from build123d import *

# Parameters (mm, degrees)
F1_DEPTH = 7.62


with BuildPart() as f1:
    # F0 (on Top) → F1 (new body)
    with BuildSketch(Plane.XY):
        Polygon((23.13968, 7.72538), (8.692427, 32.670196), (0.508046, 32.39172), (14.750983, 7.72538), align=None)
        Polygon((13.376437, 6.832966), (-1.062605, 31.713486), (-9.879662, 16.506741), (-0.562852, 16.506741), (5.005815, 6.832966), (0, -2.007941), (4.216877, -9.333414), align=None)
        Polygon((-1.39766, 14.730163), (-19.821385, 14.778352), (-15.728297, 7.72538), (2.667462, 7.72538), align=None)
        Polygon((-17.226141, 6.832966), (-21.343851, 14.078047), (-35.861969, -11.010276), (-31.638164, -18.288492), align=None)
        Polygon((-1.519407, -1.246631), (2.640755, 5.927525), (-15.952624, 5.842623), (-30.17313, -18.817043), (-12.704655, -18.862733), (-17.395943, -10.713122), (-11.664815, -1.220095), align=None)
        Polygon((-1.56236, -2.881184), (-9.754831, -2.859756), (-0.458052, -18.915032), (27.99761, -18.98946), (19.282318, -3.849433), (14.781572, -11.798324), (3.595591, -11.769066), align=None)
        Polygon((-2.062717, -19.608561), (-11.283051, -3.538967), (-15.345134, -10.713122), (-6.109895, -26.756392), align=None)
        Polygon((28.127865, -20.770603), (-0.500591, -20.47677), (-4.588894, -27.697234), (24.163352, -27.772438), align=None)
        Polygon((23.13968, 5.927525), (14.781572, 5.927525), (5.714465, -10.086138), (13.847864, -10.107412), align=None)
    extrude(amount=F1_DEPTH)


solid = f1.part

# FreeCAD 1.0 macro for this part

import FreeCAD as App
import Part
import Sketcher
Q = App.Units.Quantity

doc = App.newDocument("Part")
body = doc.addObject("PartDesign::Body", "Body")
body.AllowCompound = True

sketch1 = body.newObject("Sketcher::SketchObject", "Sketch")
sketch1.AttachmentSupport = (doc.getObject("XY_Plane"), [""])
sketch1.MapMode = "FlatFace"
sketch1.addGeometry([
    Part.LineSegment(App.Vector(23.13968, 7.72538, 0), App.Vector(8.692427, 32.670196, 0)),
    Part.LineSegment(App.Vector(8.692427, 32.670196, 0), App.Vector(0.508046, 32.39172, 0)),
    Part.LineSegment(App.Vector(0.508046, 32.39172, 0), App.Vector(14.750983, 7.72538, 0)),
    Part.LineSegment(App.Vector(14.750983, 7.72538, 0), App.Vector(23.13968, 7.72538, 0)),
    Part.LineSegment(App.Vector(13.376437, 6.832966, 0), App.Vector(-1.062605, 31.713486, 0)),
    Part.LineSegment(App.Vector(-1.062605, 31.713486, 0), App.Vector(-9.879662, 16.506741, 0)),
    Part.LineSegment(App.Vector(-9.879662, 16.506741, 0), App.Vector(-0.562852, 16.506741, 0)),
    Part.LineSegment(App.Vector(-0.562852, 16.506741, 0), App.Vector(5.005815, 6.832966, 0)),
    Part.LineSegment(App.Vector(5.005815, 6.832966, 0), App.Vector(0, -2.007941, 0)),
    Part.LineSegment(App.Vector(0, -2.007941, 0), App.Vector(4.216877, -9.333414, 0)),
    Part.LineSegment(App.Vector(4.216877, -9.333414, 0), App.Vector(13.376437, 6.832966, 0)),
    Part.LineSegment(App.Vector(-1.39766, 14.730163, 0), App.Vector(-19.821385, 14.778352, 0)),
    Part.LineSegment(App.Vector(-19.821385, 14.778352, 0), App.Vector(-15.728297, 7.72538, 0)),
    Part.LineSegment(App.Vector(-15.728297, 7.72538, 0), App.Vector(2.667462, 7.72538, 0)),
    Part.LineSegment(App.Vector(2.667462, 7.72538, 0), App.Vector(-1.39766, 14.730163, 0)),
    Part.LineSegment(App.Vector(-17.226141, 6.832966, 0), App.Vector(-21.343851, 14.078047, 0)),
    Part.LineSegment(App.Vector(-21.343851, 14.078047, 0), App.Vector(-35.861969, -11.010276, 0)),
    Part.LineSegment(App.Vector(-35.861969, -11.010276, 0), App.Vector(-31.638164, -18.288492, 0)),
    Part.LineSegment(App.Vector(-31.638164, -18.288492, 0), App.Vector(-17.226141, 6.832966, 0)),
    Part.LineSegment(App.Vector(-1.519407, -1.246631, 0), App.Vector(2.640755, 5.927525, 0)),
    Part.LineSegment(App.Vector(2.640755, 5.927525, 0), App.Vector(-15.952624, 5.842623, 0)),
    Part.LineSegment(App.Vector(-15.952624, 5.842623, 0), App.Vector(-30.17313, -18.817043, 0)),
    Part.LineSegment(App.Vector(-30.17313, -18.817043, 0), App.Vector(-12.704655, -18.862733, 0)),
    Part.LineSegment(App.Vector(-12.704655, -18.862733, 0), App.Vector(-17.395943, -10.713122, 0)),
    Part.LineSegment(App.Vector(-17.395943, -10.713122, 0), App.Vector(-11.664815, -1.220095, 0)),
    Part.LineSegment(App.Vector(-11.664815, -1.220095, 0), App.Vector(-1.519407, -1.246631, 0)),
    Part.LineSegment(App.Vector(-1.56236, -2.881184, 0), App.Vector(-9.754831, -2.859756, 0)),
    Part.LineSegment(App.Vector(-9.754831, -2.859756, 0), App.Vector(-0.458052, -18.915032, 0)),
    Part.LineSegment(App.Vector(-0.458052, -18.915032, 0), App.Vector(27.99761, -18.98946, 0)),
    Part.LineSegment(App.Vector(27.99761, -18.98946, 0), App.Vector(19.282318, -3.849433, 0)),
    Part.LineSegment(App.Vector(19.282318, -3.849433, 0), App.Vector(14.781572, -11.798324, 0)),
    Part.LineSegment(App.Vector(14.781572, -11.798324, 0), App.Vector(3.595591, -11.769066, 0)),
    Part.LineSegment(App.Vector(3.595591, -11.769066, 0), App.Vector(-1.56236, -2.881184, 0)),
    Part.LineSegment(App.Vector(-2.062717, -19.608561, 0), App.Vector(-11.283051, -3.538967, 0)),
    Part.LineSegment(App.Vector(-11.283051, -3.538967, 0), App.Vector(-15.345134, -10.713122, 0)),
    Part.LineSegment(App.Vector(-15.345134, -10.713122, 0), App.Vector(-6.109895, -26.756392, 0)),
    Part.LineSegment(App.Vector(-6.109895, -26.756392, 0), App.Vector(-2.062717, -19.608561, 0)),
    Part.LineSegment(App.Vector(28.127865, -20.770603, 0), App.Vector(-0.500591, -20.47677, 0)),
    Part.LineSegment(App.Vector(-0.500591, -20.47677, 0), App.Vector(-4.588894, -27.697234, 0)),
    Part.LineSegment(App.Vector(-4.588894, -27.697234, 0), App.Vector(24.163352, -27.772438, 0)),
    Part.LineSegment(App.Vector(24.163352, -27.772438, 0), App.Vector(28.127865, -20.770603, 0)),
    Part.LineSegment(App.Vector(23.13968, 5.927525, 0), App.Vector(14.781572, 5.927525, 0)),
    Part.LineSegment(App.Vector(14.781572, 5.927525, 0), App.Vector(5.714465, -10.086138, 0)),
    Part.LineSegment(App.Vector(5.714465, -10.086138, 0), App.Vector(13.847864, -10.107412, 0)),
    Part.LineSegment(App.Vector(13.847864, -10.107412, 0), App.Vector(23.13968, 5.927525, 0)),
], False)
sketch1.addConstraint([
    Sketcher.Constraint("Coincident", 0, 2, 1, 1),
    Sketcher.Constraint("Coincident", 1, 2, 2, 1),
    Sketcher.Constraint("Coincident", 2, 2, 3, 1),
    Sketcher.Constraint("Coincident", 3, 2, 0, 1),
    Sketcher.Constraint("Coincident", 4, 2, 5, 1),
    Sketcher.Constraint("Coincident", 5, 2, 6, 1),
    Sketcher.Constraint("Coincident", 6, 2, 7, 1),
    Sketcher.Constraint("Coincident", 7, 2, 8, 1),
    Sketcher.Constraint("Coincident", 8, 2, 9, 1),
    Sketcher.Constraint("Coincident", 9, 2, 10, 1),
    Sketcher.Constraint("Coincident", 10, 2, 4, 1),
    Sketcher.Constraint("Coincident", 11, 2, 12, 1),
    Sketcher.Constraint("Coincident", 12, 2, 13, 1),
    Sketcher.Constraint("Coincident", 13, 2, 14, 1),
    Sketcher.Constraint("Coincident", 14, 2, 11, 1),
    Sketcher.Constraint("Coincident", 15, 2, 16, 1),
    Sketcher.Constraint("Coincident", 16, 2, 17, 1),
    Sketcher.Constraint("Coincident", 17, 2, 18, 1),
    Sketcher.Constraint("Coincident", 18, 2, 15, 1),
    Sketcher.Constraint("Coincident", 19, 2, 20, 1),
    Sketcher.Constraint("Coincident", 20, 2, 21, 1),
    Sketcher.Constraint("Coincident", 21, 2, 22, 1),
    Sketcher.Constraint("Coincident", 22, 2, 23, 1),
    Sketcher.Constraint("Coincident", 23, 2, 24, 1),
    Sketcher.Constraint("Coincident", 24, 2, 25, 1),
    Sketcher.Constraint("Coincident", 25, 2, 19, 1),
    Sketcher.Constraint("Coincident", 26, 2, 27, 1),
    Sketcher.Constraint("Coincident", 27, 2, 28, 1),
    Sketcher.Constraint("Coincident", 28, 2, 29, 1),
    Sketcher.Constraint("Coincident", 29, 2, 30, 1),
    Sketcher.Constraint("Coincident", 30, 2, 31, 1),
    Sketcher.Constraint("Coincident", 31, 2, 32, 1),
    Sketcher.Constraint("Coincident", 32, 2, 26, 1),
    Sketcher.Constraint("Coincident", 33, 2, 34, 1),
    Sketcher.Constraint("Coincident", 34, 2, 35, 1),
    Sketcher.Constraint("Coincident", 35, 2, 36, 1),
    Sketcher.Constraint("Coincident", 36, 2, 33, 1),
    Sketcher.Constraint("Coincident", 37, 2, 38, 1),
    Sketcher.Constraint("Coincident", 38, 2, 39, 1),
    Sketcher.Constraint("Coincident", 39, 2, 40, 1),
    Sketcher.Constraint("Coincident", 40, 2, 37, 1),
    Sketcher.Constraint("Coincident", 41, 2, 42, 1),
    Sketcher.Constraint("Coincident", 42, 2, 43, 1),
    Sketcher.Constraint("Coincident", 43, 2, 44, 1),
    Sketcher.Constraint("Coincident", 44, 2, 41, 1),
    Sketcher.Constraint("Horizontal", 3),
    Sketcher.Constraint("Horizontal", 6),
    Sketcher.Constraint("Horizontal", 13),
    Sketcher.Constraint("Horizontal", 41),
    Sketcher.Constraint("PointOnObject", 8, 2, -2),
    Sketcher.Constraint("Parallel", 7, 9),
    Sketcher.Constraint("Parallel", 4, 12),
    Sketcher.Constraint("Parallel", 12, 14),
    Sketcher.Constraint("Parallel", 14, 17),
    Sketcher.Constraint("Parallel", 11, 22),
    Sketcher.Constraint("Parallel", 9, 23),
    Sketcher.Constraint("Parallel", 22, 25),
    Sketcher.Constraint("Parallel", 25, 26),
    Sketcher.Constraint("Parallel", 26, 28),
    Sketcher.Constraint("Parallel", 23, 29),
    Sketcher.Constraint("Parallel", 8, 30),
    Sketcher.Constraint("Parallel", 28, 31),
    Sketcher.Constraint("Parallel", 17, 32),
    Sketcher.Constraint("Parallel", 30, 34),
    Sketcher.Constraint("Parallel", 29, 35),
    Sketcher.Constraint("Parallel", 34, 36),
    Sketcher.Constraint("Parallel", 36, 38),
    Sketcher.Constraint("Parallel", 31, 39),
    Sketcher.Constraint("Parallel", 38, 40),
    Sketcher.Constraint("Parallel", 40, 42),
    Sketcher.Constraint("Parallel", 39, 43),
    Sketcher.Constraint("Horizontal", 7, 2, 10, 2),
    Sketcher.Constraint("Horizontal", 3, 2, 12, 2),
    Sketcher.Constraint("Horizontal", 10, 2, 18, 2),
    Sketcher.Constraint("Horizontal", 23, 2, 34, 2),
    Sketcher.Constraint("Horizontal", 19, 2, 41, 2),
    Sketcher.Constraint("Vertical", 30, 2, 41, 2),
    Sketcher.Constraint("Vertical", 3, 2, 44, 2),
    Sketcher.Constraint("Distance", 19, Q("0.3264999 in")),
    Sketcher.Constraint("Distance", 14, Q("8.098901 mm")),
    Sketcher.Constraint("Distance", 16, Q("28.986198 mm")),
    Sketcher.Constraint("Distance", 26, Q("8.192499 mm")),
    Sketcher.Constraint("DistanceX", 6, 1, 6, 2, Q("9.31681 mm")),
    Sketcher.Constraint("DistanceX", 13, 1, 13, 2, Q("18.395759 mm")),
    Sketcher.Constraint("DistanceX", 6, 2, 1, 2, Q("1.070898 mm")),
    Sketcher.Constraint("DistanceX", 11, 2, 7, 2, Q("24.8272 mm")),
    Sketcher.Constraint("DistanceX", 15, 2, 6, 2, Q("20.780999 mm")),
    Sketcher.Constraint("DistanceY", 27, 2, 22, 2, Q("0.052299 mm")),
    Sketcher.Constraint("DistanceY", 27, 2, 25, 2, Q("17.668401 mm")),
    Sketcher.Constraint("DistanceY", 29, 2, 10, 2, Q("10.682399 mm")),
    Sketcher.Constraint("DistanceX", 35, 2, 38, 2, Q("1.521001 mm")),
    Sketcher.Constraint("DistanceY", 38, 2, 22, 2, Q("8.834501 mm")),
    Sketcher.Constraint("DistanceX", 42, 2, 43, 2, Q("8.133399 mm")),
    Sketcher.Constraint("DistanceY", 43, 2, 9, 2, Q("0.773998 mm")),
    Sketcher.Constraint("Distance", 9, Q("8.452491 mm")),
    Sketcher.Constraint("Distance", 11, Q("18.423788 mm")),
    Sketcher.Constraint("Distance", 15, Q("8.333471 mm")),
    Sketcher.Constraint("Distance", 18, Q("28.961942 mm")),
    Sketcher.Constraint("Distance", 23, Q("9.403422 mm")),
    Sketcher.Constraint("Distance", 27, Q("18.552681 mm")),
    Sketcher.Constraint("Distance", 28, Q("28.455759 mm")),
    Sketcher.Constraint("Distance", 29, Q("17.469308 mm")),
    Sketcher.Constraint("Distance", 31, Q("11.186019 mm")),
    Sketcher.Constraint("Distance", 33, Q("18.52691 mm")),
    Sketcher.Constraint("Distance", 36, Q("8.214082 mm")),
    Sketcher.Constraint("Distance", 38, Q("8.297549 mm")),
    Sketcher.Constraint("Distance", 42, Q("18.402441 mm")),
    Sketcher.Constraint("DistanceX", 3, 1, 3, 2, Q("8.388697 mm")),
    Sketcher.Constraint("DistanceX", 41, 2, 41, 1, Q("8.358108 mm")),
    Sketcher.Constraint("DistanceY", -1, 1, 1, 2, Q("32.39172 mm")),
    Sketcher.Constraint("DistanceY", -1, 1, 2, 2, Q("7.72538 mm")),
    Sketcher.Constraint("DistanceX", -1, 1, 3, 2, Q("23.13968 mm")),
    Sketcher.Constraint("DistanceY", -1, 1, 5, 2, Q("16.506741 mm")),
    Sketcher.Constraint("DistanceY", 8, 2, -1, 1, Q("2.007941 mm")),
    Sketcher.Constraint("DistanceX", -1, 1, 13, 2, Q("2.667462 mm")),
    Sketcher.Constraint("DistanceX", 14, 2, -1, 1, Q("1.39766 mm")),
    Sketcher.Constraint("DistanceX", 15, 2, -1, 1, Q("21.343851 mm")),
    Sketcher.Constraint("DistanceX", 16, 2, -1, 1, Q("35.861969 mm")),
    Sketcher.Constraint("DistanceX", 18, 2, -1, 1, Q("17.226141 mm")),
    Sketcher.Constraint("DistanceX", 21, 2, -1, 1, Q("30.17313 mm")),
    Sketcher.Constraint("DistanceY", 25, 2, -1, 1, Q("1.246631 mm")),
    Sketcher.Constraint("DistanceX", 26, 2, -1, 1, Q("9.754831 mm")),
    Sketcher.Constraint("DistanceX", 33, 2, -1, 1, Q("11.283051 mm")),
    Sketcher.Constraint("DistanceY", 36, 2, -1, 1, Q("19.608561 mm")),
    Sketcher.Constraint("DistanceX", -1, 1, 39, 2, Q("24.163352 mm")),
    Sketcher.Constraint("DistanceX", 1, 2, 0, 2, Q("8.184381 mm")),
    Sketcher.Constraint("DistanceX", 4, 2, 1, 2, Q("1.570651 mm")),
    Sketcher.Constraint("DistanceY", 4, 2, 0, 2, Q("0.95671 mm")),
    Sketcher.Constraint("DistanceY", 7, 2, 4, 2, Q("24.88052 mm")),
    Sketcher.Constraint("DistanceX", 19, 2, 7, 2, Q("2.36506 mm")),
    Sketcher.Constraint("DistanceX", 11, 2, 20, 2, Q("3.868761 mm")),
    Sketcher.Constraint("DistanceY", 20, 2, 11, 2, Q("8.935729 mm")),
    Sketcher.Constraint("DistanceX", 17, 2, 22, 2, Q("18.933509 mm")),
    Sketcher.Constraint("DistanceX", 20, 2, 24, 2, Q("4.287809 mm")),
    Sketcher.Constraint("DistanceY", 40, 2, 30, 2, Q("8.972279 mm")),
])
pad1 = body.newObject("PartDesign::Pad", "Pad")
pad1.Profile = sketch1
pad1.Length = Q("0.3 in")

doc.recompute()
